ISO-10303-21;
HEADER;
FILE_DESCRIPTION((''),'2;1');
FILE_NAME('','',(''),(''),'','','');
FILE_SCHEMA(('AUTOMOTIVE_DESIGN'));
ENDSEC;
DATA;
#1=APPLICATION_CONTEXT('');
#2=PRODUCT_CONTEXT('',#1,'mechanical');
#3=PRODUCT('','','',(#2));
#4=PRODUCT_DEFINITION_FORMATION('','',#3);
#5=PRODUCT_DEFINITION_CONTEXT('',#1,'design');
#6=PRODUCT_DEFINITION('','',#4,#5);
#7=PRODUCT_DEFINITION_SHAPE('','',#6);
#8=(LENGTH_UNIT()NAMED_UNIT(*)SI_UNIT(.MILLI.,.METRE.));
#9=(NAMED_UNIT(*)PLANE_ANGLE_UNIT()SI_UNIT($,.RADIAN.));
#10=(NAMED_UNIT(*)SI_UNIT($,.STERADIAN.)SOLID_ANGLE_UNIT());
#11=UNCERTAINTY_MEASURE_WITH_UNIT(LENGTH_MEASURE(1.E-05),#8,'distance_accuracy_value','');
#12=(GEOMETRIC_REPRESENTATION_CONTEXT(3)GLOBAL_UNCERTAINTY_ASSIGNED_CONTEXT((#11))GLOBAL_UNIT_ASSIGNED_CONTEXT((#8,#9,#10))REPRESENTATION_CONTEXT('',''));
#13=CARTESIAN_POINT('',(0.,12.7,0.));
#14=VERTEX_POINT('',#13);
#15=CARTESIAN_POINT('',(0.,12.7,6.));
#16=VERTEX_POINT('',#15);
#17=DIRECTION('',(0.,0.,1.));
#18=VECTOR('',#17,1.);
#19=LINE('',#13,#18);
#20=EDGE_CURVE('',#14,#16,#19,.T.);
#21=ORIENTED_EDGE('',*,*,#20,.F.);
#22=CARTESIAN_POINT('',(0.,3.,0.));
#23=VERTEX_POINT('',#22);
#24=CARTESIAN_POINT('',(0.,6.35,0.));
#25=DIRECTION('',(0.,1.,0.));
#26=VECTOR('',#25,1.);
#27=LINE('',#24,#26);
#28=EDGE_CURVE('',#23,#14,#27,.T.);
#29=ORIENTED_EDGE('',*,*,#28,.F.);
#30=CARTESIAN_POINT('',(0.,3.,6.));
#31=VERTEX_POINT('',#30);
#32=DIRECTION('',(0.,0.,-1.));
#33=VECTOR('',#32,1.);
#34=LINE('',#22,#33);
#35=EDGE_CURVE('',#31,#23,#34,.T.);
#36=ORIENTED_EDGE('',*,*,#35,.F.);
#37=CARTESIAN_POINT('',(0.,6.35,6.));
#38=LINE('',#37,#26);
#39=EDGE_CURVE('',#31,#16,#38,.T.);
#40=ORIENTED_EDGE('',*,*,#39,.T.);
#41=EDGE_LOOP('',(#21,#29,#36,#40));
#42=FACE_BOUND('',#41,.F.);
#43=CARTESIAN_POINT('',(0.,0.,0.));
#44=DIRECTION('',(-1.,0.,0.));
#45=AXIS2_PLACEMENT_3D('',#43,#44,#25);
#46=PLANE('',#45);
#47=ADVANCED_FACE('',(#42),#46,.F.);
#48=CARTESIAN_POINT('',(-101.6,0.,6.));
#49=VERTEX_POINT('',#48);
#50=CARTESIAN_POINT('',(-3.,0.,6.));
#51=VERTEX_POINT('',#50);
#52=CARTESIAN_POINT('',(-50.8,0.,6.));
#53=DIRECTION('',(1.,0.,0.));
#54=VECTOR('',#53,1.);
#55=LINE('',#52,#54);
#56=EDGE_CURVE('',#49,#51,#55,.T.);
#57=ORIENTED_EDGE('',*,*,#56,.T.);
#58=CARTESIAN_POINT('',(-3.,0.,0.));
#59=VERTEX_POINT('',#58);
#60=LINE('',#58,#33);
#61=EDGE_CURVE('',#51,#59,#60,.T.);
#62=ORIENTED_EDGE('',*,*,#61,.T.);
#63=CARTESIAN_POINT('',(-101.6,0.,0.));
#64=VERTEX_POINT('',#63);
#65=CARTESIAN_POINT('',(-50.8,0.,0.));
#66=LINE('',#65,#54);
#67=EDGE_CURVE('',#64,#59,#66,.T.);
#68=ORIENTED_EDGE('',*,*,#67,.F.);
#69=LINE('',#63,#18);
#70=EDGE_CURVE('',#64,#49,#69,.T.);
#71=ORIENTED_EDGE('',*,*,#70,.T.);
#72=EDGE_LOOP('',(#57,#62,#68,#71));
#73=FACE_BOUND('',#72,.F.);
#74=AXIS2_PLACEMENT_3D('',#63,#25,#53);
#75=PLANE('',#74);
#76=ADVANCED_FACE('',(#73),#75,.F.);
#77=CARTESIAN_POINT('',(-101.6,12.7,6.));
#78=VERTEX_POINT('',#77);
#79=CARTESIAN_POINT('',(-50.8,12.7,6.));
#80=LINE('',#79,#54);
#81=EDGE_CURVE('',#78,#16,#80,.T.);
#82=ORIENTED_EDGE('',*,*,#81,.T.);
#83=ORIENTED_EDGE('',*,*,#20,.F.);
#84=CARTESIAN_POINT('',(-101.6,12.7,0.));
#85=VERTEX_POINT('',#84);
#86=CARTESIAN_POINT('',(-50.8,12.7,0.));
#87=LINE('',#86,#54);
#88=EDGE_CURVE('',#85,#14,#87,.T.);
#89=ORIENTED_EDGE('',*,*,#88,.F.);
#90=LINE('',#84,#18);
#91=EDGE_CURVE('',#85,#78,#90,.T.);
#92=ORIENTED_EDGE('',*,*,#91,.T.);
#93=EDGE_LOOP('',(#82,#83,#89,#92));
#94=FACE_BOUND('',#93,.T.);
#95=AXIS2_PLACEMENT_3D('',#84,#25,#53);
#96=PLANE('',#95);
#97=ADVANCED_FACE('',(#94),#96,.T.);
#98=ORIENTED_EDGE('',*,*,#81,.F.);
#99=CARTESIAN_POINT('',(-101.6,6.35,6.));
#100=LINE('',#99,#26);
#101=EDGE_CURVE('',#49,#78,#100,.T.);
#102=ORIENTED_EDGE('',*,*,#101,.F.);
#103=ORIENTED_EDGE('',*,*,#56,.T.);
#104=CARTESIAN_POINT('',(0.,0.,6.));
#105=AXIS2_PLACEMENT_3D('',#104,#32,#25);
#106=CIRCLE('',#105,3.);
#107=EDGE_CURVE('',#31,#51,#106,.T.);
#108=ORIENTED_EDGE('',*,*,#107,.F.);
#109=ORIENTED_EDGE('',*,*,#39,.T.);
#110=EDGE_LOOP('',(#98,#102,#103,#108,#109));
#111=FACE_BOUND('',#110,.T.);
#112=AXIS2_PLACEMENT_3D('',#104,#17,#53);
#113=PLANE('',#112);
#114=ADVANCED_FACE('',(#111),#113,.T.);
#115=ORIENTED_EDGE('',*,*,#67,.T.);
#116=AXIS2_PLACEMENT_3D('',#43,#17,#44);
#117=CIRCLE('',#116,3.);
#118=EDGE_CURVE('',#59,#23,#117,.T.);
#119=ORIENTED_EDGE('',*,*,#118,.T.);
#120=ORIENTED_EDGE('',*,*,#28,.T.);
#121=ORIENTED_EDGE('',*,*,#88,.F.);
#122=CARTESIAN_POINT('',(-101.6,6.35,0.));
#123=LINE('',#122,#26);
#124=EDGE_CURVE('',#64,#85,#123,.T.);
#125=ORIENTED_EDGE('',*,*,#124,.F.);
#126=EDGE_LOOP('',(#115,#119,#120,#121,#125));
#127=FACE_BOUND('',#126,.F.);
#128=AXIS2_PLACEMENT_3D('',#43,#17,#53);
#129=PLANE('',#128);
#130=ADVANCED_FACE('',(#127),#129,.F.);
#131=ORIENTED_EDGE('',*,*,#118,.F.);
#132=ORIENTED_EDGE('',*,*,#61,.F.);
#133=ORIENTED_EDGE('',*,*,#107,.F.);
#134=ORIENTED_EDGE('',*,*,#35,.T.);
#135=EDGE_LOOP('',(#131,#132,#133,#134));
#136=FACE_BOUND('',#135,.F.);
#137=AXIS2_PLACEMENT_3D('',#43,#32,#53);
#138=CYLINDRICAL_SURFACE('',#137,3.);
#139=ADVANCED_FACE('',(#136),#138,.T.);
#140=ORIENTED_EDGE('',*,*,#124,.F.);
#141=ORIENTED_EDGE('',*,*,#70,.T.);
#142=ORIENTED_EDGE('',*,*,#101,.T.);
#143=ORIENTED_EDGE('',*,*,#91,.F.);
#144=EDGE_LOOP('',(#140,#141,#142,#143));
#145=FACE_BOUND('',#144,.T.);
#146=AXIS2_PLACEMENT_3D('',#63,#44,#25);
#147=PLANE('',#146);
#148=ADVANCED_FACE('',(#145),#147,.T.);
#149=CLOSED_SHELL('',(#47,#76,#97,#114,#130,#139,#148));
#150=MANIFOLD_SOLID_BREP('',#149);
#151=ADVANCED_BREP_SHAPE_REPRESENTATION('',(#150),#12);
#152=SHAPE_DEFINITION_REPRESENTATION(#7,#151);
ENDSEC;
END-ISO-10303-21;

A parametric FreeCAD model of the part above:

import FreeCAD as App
import Part
import Sketcher
from FreeCAD import Vector
Q = App.Units.Quantity


def add_polygon(sketch, points):
    """Adds a closed chain of lines whose ends are joined by coincident constraints."""
    first, n = sketch.GeometryCount, len(points)
    for a, b in zip(points, points[1:] + points[:1]):
        sketch.addGeometry(Part.LineSegment(App.Vector(*a, 0), App.Vector(*b, 0)), False)
    for i in range(n):
        sketch.addConstraint(Sketcher.Constraint("Coincident", first + i, 2, first + (i + 1) % n, 1))

doc = App.newDocument("Part")
body = doc.addObject("PartDesign::Body", "Body")

sketch1 = body.newObject("Sketcher::SketchObject", "Sketch")
sketch1.AttachmentSupport = (doc.getObject("XY_Plane"), [""])
sketch1.MapMode = "FlatFace"
add_polygon(sketch1, [(-102, 13), (-102, 0), (0, 0), (0, 13)])
sketch1.addConstraint([
    Sketcher.Constraint("Vertical", 0),
    Sketcher.Constraint("Horizontal", 1),
    Sketcher.Constraint("Vertical", 2),
    Sketcher.Constraint("Horizontal", 3),
    Sketcher.Constraint("Coincident", 1, 2, -1, 1),
    Sketcher.Constraint("DistanceX", 1, 1, 1, 2, Q("4 in")),
    Sketcher.Constraint("DistanceY", 0, 2, 0, 1, Q("0.5 in")),
])
pad1 = body.newObject("PartDesign::Pad", "Pad")
pad1.Profile = sketch1
pad1.Length = 6

sketch2 = body.newObject("Sketcher::SketchObject", "Sketch001")
sketch2.AttachmentSupport = (doc.getObject("XY_Plane"), [""])
sketch2.MapMode = "FlatFace"
sketch2.addGeometry(Part.Circle(Vector(0, 0, 0), Vector(0, 0, 1), 3), False)
sketch2.addConstraint([
    Sketcher.Constraint("Coincident", 0, 3, -1, 1),
    Sketcher.Constraint("Diameter", 0, 6.0),
])
pad2 = body.newObject("PartDesign::Pad", "Pad001")
pad2.Profile = sketch2
pad2.Length = 6

doc.recompute()
